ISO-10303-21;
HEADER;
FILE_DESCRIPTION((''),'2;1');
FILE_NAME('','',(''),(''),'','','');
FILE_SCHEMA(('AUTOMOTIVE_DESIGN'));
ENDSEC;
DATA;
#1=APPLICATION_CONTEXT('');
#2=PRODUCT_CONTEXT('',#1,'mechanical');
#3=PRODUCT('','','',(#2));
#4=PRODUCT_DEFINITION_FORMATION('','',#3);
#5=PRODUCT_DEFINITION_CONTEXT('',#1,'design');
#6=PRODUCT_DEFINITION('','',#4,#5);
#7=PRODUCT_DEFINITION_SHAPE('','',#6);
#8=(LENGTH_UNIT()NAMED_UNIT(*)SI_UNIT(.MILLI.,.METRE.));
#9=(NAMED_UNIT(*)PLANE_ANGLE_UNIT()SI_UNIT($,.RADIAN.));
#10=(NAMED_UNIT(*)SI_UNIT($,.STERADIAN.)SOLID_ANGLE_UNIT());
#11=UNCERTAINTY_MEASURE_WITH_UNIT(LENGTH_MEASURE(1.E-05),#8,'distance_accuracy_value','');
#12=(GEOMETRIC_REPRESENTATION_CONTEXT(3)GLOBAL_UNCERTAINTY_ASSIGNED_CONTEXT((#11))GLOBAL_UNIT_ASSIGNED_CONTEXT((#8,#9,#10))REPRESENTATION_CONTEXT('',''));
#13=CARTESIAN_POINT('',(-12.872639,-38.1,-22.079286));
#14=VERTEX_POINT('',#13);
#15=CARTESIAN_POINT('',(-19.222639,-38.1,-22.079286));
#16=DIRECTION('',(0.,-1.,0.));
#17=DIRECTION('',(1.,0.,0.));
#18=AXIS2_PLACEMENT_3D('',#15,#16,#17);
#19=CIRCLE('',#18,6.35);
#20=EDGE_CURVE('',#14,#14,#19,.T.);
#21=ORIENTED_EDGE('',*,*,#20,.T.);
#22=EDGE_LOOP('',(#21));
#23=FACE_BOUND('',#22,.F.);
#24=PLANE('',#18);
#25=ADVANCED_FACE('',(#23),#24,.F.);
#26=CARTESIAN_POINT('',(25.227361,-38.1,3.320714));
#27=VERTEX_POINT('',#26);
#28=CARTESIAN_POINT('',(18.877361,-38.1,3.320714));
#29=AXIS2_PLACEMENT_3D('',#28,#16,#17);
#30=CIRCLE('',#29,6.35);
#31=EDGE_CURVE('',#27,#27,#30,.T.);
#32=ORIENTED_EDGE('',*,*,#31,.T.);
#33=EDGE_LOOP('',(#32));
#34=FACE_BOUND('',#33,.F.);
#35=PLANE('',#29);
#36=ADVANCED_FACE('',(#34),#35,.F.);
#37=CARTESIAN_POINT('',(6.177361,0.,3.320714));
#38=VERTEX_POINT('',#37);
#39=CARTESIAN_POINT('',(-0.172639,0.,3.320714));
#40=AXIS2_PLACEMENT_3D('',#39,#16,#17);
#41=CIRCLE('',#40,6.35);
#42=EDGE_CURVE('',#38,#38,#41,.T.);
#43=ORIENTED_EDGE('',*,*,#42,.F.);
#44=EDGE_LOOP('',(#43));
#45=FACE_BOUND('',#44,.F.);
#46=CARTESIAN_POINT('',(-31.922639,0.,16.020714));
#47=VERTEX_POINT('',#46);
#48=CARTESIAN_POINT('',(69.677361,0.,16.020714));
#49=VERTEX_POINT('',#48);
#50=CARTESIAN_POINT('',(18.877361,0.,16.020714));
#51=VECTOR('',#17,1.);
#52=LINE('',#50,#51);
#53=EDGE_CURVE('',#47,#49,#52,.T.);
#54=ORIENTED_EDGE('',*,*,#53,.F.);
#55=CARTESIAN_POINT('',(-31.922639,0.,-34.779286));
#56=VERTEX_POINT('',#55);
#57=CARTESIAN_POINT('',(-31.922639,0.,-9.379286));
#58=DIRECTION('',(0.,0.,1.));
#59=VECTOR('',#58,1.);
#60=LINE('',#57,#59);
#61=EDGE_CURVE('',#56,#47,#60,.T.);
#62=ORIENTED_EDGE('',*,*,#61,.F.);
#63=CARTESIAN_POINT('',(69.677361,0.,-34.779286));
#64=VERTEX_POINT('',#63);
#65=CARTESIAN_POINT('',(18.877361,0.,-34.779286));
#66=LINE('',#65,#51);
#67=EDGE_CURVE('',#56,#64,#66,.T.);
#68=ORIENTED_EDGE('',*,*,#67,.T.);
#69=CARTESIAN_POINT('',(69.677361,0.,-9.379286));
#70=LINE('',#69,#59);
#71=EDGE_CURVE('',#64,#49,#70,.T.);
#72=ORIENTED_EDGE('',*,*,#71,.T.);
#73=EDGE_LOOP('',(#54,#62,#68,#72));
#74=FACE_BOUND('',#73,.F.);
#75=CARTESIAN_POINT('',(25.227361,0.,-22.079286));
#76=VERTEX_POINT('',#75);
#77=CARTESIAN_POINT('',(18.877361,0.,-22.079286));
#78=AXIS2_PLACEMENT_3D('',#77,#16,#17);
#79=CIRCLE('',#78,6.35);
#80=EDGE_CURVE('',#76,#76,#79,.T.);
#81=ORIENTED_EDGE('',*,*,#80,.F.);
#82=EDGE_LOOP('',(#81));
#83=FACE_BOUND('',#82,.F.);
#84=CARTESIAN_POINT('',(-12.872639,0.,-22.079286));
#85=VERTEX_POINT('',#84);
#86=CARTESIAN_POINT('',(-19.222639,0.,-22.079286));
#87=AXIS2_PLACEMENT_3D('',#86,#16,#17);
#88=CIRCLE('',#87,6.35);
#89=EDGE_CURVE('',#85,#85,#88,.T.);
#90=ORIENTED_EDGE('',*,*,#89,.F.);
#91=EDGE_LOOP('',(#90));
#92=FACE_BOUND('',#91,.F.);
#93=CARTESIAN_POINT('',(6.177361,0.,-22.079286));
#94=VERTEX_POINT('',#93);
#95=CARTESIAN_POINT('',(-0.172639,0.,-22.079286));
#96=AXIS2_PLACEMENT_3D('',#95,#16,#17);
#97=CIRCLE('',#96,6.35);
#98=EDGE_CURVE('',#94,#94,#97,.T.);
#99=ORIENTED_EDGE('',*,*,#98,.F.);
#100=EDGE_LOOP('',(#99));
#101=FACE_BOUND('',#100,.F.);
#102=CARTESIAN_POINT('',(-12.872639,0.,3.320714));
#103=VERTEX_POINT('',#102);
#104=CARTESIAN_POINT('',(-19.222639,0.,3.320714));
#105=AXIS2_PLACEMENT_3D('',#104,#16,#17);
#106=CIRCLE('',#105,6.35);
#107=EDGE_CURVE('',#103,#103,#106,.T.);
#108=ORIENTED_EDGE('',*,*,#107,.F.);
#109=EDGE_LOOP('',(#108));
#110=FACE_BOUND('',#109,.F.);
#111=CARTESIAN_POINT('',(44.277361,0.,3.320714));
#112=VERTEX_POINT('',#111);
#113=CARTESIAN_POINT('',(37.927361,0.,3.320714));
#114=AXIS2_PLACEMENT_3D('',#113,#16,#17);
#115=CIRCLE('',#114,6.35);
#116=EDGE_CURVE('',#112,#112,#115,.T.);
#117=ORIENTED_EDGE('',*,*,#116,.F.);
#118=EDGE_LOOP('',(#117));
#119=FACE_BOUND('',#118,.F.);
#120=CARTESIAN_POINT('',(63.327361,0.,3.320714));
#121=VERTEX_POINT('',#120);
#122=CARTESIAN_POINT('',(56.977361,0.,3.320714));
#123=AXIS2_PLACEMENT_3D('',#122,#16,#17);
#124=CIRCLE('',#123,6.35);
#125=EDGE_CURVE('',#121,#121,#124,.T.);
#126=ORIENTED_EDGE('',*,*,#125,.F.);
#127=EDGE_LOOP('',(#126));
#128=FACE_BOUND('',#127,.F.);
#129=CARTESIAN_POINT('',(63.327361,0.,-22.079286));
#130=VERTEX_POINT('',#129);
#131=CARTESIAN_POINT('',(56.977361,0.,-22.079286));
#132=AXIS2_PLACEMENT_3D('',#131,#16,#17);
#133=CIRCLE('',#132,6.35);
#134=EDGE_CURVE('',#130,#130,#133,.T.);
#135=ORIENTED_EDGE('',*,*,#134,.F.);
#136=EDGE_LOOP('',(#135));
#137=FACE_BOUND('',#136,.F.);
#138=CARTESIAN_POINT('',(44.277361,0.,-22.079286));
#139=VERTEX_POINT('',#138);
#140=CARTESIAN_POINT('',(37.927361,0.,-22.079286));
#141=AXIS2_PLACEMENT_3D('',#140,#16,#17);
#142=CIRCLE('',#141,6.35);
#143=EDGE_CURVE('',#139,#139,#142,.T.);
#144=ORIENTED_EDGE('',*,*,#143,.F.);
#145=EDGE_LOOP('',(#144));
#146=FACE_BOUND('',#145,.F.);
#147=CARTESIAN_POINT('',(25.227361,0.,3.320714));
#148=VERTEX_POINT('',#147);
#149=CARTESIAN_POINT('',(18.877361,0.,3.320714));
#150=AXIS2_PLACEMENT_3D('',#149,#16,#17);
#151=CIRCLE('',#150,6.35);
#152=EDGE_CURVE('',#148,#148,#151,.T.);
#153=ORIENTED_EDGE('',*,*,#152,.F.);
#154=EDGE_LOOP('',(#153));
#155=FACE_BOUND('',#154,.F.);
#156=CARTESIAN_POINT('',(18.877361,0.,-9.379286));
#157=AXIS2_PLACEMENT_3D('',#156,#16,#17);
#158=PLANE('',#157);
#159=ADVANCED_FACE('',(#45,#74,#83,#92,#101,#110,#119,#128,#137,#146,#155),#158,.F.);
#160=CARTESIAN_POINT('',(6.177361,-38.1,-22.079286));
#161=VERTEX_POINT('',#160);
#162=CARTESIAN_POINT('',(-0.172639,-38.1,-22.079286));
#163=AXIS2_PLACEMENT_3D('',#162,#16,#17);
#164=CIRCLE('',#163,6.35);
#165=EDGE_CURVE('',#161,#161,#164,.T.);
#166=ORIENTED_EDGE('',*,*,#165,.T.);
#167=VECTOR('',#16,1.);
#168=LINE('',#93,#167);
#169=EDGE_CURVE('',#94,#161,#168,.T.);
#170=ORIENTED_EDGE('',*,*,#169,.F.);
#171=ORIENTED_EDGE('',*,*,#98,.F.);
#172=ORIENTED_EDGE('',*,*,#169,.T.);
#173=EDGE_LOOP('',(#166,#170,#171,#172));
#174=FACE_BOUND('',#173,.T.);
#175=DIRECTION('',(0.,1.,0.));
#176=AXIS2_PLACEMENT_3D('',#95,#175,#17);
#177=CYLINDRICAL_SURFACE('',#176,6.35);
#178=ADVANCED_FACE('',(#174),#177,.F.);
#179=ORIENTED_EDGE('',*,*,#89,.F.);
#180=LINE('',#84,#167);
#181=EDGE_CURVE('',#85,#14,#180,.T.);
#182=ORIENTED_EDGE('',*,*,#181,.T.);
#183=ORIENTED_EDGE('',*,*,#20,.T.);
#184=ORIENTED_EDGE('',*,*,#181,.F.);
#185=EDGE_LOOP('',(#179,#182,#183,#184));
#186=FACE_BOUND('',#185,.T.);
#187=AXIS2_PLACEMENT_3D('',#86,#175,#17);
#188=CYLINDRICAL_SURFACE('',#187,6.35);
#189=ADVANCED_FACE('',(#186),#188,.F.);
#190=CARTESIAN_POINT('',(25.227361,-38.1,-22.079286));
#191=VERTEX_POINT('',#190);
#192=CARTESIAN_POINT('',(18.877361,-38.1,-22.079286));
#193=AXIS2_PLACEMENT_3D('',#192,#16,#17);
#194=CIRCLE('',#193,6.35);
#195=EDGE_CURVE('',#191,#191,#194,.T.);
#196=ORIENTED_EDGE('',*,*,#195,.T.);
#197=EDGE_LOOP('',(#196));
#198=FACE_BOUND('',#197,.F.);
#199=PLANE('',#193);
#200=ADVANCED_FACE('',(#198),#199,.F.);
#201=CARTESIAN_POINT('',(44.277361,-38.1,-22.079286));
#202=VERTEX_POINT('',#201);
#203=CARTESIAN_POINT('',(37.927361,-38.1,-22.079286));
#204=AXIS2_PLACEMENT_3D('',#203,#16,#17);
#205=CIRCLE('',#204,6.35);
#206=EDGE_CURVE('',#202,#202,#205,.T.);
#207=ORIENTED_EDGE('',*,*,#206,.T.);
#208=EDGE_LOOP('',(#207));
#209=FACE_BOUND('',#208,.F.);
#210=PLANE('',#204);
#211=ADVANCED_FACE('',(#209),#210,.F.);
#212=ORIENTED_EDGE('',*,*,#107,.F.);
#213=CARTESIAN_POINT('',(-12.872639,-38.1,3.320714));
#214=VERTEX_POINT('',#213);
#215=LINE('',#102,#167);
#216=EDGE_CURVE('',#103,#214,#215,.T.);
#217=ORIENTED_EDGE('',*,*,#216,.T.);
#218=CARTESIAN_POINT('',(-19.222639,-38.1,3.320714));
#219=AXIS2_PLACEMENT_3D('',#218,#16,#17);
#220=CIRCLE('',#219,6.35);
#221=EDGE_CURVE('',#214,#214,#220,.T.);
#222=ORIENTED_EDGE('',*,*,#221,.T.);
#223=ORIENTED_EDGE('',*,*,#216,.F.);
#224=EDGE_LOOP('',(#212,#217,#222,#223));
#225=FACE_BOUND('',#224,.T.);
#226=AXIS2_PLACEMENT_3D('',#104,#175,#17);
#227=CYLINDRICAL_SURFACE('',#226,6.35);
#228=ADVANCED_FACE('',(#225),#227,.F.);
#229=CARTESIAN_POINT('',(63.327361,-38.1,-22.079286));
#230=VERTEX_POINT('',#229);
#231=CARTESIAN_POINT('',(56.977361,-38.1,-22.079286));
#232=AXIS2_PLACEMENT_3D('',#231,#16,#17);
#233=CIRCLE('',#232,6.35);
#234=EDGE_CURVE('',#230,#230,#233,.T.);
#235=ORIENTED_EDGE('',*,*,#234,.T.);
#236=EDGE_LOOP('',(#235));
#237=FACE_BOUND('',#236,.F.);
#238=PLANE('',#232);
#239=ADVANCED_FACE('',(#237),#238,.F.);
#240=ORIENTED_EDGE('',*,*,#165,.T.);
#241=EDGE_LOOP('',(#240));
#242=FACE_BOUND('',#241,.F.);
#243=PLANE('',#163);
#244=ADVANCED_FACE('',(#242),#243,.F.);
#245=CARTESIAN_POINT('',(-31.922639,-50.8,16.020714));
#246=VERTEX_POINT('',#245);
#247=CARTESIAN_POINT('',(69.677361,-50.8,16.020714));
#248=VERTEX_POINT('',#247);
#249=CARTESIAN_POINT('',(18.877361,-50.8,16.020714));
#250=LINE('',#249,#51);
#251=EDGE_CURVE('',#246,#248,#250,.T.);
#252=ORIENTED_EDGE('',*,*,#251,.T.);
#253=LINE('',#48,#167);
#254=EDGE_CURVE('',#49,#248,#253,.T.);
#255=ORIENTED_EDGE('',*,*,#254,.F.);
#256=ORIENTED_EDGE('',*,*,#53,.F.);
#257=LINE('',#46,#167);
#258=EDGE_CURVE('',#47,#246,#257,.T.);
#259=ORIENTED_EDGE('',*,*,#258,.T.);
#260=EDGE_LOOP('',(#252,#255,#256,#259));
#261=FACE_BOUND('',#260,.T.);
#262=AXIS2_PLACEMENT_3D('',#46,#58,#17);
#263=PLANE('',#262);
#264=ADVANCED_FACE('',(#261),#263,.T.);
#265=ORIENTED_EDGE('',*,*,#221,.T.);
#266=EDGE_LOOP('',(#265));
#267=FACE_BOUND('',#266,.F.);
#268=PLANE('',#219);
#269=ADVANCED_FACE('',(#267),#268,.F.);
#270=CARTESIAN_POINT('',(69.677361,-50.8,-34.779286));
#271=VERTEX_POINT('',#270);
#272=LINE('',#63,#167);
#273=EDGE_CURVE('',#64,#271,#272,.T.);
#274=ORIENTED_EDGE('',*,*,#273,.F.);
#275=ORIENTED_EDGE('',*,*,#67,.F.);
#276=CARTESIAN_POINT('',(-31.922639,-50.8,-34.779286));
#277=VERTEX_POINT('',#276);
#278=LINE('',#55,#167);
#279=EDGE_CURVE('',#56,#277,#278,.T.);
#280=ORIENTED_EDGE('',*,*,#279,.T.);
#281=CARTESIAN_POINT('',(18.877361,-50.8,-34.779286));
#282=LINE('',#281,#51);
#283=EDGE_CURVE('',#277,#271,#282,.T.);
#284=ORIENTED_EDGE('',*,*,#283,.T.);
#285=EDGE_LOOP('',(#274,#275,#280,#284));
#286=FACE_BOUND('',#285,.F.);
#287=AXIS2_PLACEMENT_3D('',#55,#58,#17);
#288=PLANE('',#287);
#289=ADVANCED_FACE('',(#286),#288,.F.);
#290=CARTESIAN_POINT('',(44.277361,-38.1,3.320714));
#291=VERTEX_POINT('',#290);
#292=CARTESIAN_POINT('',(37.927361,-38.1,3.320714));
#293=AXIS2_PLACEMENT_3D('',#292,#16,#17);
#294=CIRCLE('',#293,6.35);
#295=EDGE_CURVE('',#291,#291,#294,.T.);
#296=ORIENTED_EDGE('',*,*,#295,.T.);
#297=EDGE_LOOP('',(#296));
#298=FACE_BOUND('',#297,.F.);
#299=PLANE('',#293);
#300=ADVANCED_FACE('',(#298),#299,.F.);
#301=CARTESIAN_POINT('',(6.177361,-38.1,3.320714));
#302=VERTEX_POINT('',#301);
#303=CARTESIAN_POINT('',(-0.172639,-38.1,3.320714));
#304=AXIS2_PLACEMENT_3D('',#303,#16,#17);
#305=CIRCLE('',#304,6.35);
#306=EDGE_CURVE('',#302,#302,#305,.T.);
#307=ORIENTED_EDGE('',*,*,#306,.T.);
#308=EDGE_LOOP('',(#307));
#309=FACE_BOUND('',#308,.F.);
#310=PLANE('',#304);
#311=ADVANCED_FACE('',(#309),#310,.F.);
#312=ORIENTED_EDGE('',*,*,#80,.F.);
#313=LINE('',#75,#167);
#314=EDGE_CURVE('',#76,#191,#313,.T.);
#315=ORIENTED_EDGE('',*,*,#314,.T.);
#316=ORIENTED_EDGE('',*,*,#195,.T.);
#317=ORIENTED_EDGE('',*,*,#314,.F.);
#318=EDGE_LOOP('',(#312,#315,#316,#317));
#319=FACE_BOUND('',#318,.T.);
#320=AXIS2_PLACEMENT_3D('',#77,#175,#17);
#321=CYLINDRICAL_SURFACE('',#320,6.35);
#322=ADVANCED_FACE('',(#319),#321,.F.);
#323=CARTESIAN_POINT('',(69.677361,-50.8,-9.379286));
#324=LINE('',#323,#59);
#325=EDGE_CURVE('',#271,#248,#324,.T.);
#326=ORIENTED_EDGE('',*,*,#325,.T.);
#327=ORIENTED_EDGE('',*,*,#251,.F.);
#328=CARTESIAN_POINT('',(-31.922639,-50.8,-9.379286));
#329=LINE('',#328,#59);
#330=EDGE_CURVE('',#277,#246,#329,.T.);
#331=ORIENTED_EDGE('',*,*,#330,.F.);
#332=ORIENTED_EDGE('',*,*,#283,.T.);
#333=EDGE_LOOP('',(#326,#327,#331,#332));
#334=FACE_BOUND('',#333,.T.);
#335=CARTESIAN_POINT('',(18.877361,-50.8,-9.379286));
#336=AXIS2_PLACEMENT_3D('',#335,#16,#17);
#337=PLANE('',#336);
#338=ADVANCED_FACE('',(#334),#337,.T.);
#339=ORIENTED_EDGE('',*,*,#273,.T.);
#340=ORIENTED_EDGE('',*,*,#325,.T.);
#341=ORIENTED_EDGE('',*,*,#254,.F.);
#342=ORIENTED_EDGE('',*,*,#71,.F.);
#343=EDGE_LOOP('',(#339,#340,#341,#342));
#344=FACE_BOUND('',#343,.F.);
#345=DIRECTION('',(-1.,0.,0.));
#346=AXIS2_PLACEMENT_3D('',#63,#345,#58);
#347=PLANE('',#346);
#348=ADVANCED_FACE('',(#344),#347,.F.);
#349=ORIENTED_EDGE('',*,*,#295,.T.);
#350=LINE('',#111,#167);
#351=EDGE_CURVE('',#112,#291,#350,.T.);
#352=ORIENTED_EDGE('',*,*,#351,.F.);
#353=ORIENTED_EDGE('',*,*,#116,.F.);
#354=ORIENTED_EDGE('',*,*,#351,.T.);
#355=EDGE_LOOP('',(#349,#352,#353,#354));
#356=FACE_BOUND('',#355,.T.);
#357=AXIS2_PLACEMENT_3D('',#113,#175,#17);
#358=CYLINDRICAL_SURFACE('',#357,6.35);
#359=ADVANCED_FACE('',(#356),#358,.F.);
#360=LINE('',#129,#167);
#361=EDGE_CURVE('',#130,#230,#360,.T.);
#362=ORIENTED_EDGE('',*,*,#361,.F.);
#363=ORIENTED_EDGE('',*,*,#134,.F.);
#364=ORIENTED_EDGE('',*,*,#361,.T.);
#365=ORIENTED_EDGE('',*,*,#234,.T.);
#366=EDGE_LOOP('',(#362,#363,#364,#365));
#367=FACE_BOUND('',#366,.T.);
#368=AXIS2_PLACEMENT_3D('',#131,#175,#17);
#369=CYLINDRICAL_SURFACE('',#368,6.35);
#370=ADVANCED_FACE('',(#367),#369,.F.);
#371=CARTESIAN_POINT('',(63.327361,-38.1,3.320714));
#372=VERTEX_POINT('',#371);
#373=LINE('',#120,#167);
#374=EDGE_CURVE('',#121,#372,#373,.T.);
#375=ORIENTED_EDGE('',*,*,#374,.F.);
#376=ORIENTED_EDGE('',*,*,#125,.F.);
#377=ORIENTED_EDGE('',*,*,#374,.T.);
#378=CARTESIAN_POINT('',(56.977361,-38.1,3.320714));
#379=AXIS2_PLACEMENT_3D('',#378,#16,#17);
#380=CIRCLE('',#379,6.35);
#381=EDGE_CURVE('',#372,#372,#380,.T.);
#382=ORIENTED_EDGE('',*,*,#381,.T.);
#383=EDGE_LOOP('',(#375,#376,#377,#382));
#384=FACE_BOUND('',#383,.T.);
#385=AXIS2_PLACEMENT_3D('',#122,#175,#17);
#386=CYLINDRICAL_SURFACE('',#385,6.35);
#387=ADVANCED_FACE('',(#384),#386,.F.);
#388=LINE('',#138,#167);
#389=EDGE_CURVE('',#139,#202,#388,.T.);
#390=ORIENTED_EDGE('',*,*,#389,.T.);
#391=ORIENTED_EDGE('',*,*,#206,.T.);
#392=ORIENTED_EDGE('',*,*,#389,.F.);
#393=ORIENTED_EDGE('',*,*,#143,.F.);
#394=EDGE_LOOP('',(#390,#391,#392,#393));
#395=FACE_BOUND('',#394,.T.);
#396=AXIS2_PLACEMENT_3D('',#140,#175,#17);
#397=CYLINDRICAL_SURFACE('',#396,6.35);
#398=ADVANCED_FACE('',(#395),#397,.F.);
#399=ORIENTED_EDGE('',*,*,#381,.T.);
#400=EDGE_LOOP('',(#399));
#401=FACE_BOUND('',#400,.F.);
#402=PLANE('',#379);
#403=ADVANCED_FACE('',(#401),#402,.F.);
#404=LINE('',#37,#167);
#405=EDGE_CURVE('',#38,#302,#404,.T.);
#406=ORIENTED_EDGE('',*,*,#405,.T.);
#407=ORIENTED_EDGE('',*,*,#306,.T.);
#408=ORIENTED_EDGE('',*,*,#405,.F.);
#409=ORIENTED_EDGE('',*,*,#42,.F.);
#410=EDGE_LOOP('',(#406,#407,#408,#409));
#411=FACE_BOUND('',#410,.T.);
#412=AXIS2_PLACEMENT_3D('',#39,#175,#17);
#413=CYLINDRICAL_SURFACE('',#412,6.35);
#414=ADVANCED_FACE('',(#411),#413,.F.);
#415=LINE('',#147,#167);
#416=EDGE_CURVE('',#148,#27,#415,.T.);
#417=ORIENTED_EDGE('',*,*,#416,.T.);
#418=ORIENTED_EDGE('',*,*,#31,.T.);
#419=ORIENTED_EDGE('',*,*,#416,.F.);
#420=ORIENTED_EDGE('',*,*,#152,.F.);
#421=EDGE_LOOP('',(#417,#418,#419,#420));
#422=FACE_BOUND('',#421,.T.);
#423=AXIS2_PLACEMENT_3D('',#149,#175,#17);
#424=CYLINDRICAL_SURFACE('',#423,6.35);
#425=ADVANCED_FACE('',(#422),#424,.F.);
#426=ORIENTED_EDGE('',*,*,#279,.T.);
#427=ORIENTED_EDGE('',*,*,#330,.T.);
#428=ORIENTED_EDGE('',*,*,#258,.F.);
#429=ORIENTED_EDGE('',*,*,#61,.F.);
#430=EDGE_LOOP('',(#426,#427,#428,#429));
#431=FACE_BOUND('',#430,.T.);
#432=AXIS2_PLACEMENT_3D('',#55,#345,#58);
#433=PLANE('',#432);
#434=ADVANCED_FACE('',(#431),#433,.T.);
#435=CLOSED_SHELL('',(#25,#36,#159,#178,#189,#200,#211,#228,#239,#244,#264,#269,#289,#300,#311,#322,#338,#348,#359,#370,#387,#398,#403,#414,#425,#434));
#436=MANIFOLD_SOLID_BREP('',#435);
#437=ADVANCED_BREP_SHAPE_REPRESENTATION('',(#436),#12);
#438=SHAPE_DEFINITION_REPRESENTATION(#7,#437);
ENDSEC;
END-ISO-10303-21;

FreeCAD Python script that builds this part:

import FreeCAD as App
import Part
import Sketcher

V = App.Vector
Q = App.Units.Quantity

doc = App.newDocument("Part")
body = doc.addObject("PartDesign::Body", "Body")

sketch1 = doc.addObject("Sketcher::SketchObject", "Sketch")
body.addObject(sketch1)
sketch1.AttachmentSupport = (doc.XZ_Plane, [""])
sketch1.MapMode = "FlatFace"
sketch1.addGeometry([
    Part.LineSegment(V(-32, 16, 0), V(-32, -35, 0)),
    Part.LineSegment(V(-32, -35, 0), V(70, -35, 0)),
    Part.LineSegment(V(70, -35, 0), V(70, 16, 0)),
    Part.LineSegment(V(70, 16, 0), V(-32, 16, 0)),
], False)
sketch1.addConstraint([
    Sketcher.Constraint("Coincident", 0, 2, 1, 1),
    Sketcher.Constraint("Coincident", 1, 2, 2, 1),
    Sketcher.Constraint("Coincident", 2, 2, 3, 1),
    Sketcher.Constraint("Coincident", 3, 2, 0, 1),
    Sketcher.Constraint("Vertical", 0),
    Sketcher.Constraint("Horizontal", 1),
    Sketcher.Constraint("Vertical", 2),
    Sketcher.Constraint("Horizontal", 3),
    Sketcher.Constraint("DistanceX", 1, 1, 1, 2, Q("4 in")),
    Sketcher.Constraint("DistanceY", 0, 2, 0, 1, Q("2 in")),
    Sketcher.Constraint("DistanceX", 0, 2, -1, 1, Q("31.922639 mm")),
    Sketcher.Constraint("DistanceY", 0, 2, -1, 1, Q("34.779286 mm")),
])
pad1 = doc.addObject("PartDesign::Pad", "Pad")
body.addObject(pad1)
pad1.Profile = sketch1
pad1.Length = Q("2 in")

sketch2 = doc.addObject("Sketcher::SketchObject", "Sketch001")
body.addObject(sketch2)
sketch2.AttachmentSupport = (doc.XZ_Plane, [""])
sketch2.MapMode = "FlatFace"
sketch2.addGeometry([
    Part.Circle(V(-19, 3, 0), V(0, 0, 1), 6),
    Part.Circle(V(-19, -22, 0), V(0, 0, 1), 6),
    Part.Circle(V(0, 3, 0), V(0, 0, 1), 6),
    Part.Circle(V(0, -22, 0), V(0, 0, 1), 6),
    Part.Circle(V(19, 3, 0), V(0, 0, 1), 6),
    Part.Circle(V(19, -22, 0), V(0, 0, 1), 6),
    Part.Circle(V(38, -22, 0), V(0, 0, 1), 6),
    Part.Circle(V(38, 3, 0), V(0, 0, 1), 6),
    Part.Circle(V(57, 3, 0), V(0, 0, 1), 6),
    Part.Circle(V(57, -22, 0), V(0, 0, 1), 6),
], False)
sketch2.addConstraint([
    Sketcher.Constraint("Equal", 0, 1),
    Sketcher.Constraint("Equal", 1, 2),
    Sketcher.Constraint("Equal", 2, 3),
    Sketcher.Constraint("Equal", 3, 4),
    Sketcher.Constraint("Equal", 4, 5),
    Sketcher.Constraint("Equal", 5, 6),
    Sketcher.Constraint("Equal", 6, 7),
    Sketcher.Constraint("Equal", 7, 8),
    Sketcher.Constraint("Equal", 8, 9),
    Sketcher.Constraint("Horizontal", 0, 3, 2, 3),
    Sketcher.Constraint("Horizontal", 1, 3, 3, 3),
    Sketcher.Constraint("Horizontal", 2, 3, 4, 3),
    Sketcher.Constraint("Horizontal", 3, 3, 5, 3),
    Sketcher.Constraint("Horizontal", 5, 3, 6, 3),
    Sketcher.Constraint("Horizontal", 4, 3, 7, 3),
    Sketcher.Constraint("Horizontal", 7, 3, 8, 3),
    Sketcher.Constraint("Horizontal", 6, 3, 9, 3),
    Sketcher.Constraint("Vertical", 0, 3, 1, 3),
    Sketcher.Constraint("Vertical", 2, 3, 3, 3),
    Sketcher.Constraint("Vertical", 4, 3, 5, 3),
    Sketcher.Constraint("Vertical", 6, 3, 7, 3),
    Sketcher.Constraint("Vertical", 8, 3, 9, 3),
    Sketcher.Constraint("Diameter", 0, Q("0.5 in")),
    Sketcher.Constraint("DistanceY", 1, 3, 0, 3, Q("1 in")),
    Sketcher.Constraint("DistanceX", 0, 3, 4, 3, Q("1.5 in")),
    Sketcher.Constraint("DistanceX", 3, 3, 6, 3, Q("1.5 in")),
    Sketcher.Constraint("DistanceX", 4, 3, 8, 3, Q("1.5 in")),
    Sketcher.Constraint("DistanceX", 0, 3, 2, 3, Q("0.75 in")),
    Sketcher.Constraint("DistanceX", 0, 3, -1, 1, Q("19.222639 mm")),
    Sketcher.Constraint("DistanceY", -1, 1, 0, 3, Q("3.320714 mm")),
])
pocket1 = doc.addObject("PartDesign::Pocket", "Pocket")
body.addObject(pocket1)
pocket1.Profile = sketch2
pocket1.Length = Q("1.5 in")
pocket1.Reversed = True

doc.recompute()
